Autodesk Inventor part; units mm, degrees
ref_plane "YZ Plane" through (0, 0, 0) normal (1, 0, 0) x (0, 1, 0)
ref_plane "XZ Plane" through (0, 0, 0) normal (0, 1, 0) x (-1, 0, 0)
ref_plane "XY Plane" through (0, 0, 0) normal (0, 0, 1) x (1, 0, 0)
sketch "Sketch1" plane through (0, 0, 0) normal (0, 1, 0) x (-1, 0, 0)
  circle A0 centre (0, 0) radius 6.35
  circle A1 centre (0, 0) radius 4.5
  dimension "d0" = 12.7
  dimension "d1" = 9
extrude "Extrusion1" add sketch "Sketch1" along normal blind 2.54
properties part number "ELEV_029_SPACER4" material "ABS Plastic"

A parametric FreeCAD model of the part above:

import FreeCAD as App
import Part
import Sketcher
from FreeCAD import Vector
Q = App.Units.Quantity

doc = App.newDocument("Part")
body = doc.addObject("PartDesign::Body", "Body")

# Sketch on XZ plane
sketch1 = body.newObject("Sketcher::SketchObject", "Sketch")
sketch1.AttachmentSupport = (doc.getObject("XZ_Plane"), [""])
sketch1.MapMode = "FlatFace"
sketch1.addGeometry(Part.Circle(Vector(0, 0, 0), Vector(0, 0, 1), 6.3), False)
sketch1.addGeometry(Part.Circle(Vector(0, 0, 0), Vector(0, 0, 1), 4.5), False)
sketch1.addConstraint(Sketcher.Constraint("Coincident", 0, 3, -1, 1))
sketch1.addConstraint(Sketcher.Constraint("Coincident", 1, 3, -1, 1))
sketch1.addConstraint(Sketcher.Constraint("Diameter", 0, Q("0.5 in")))
sketch1.addConstraint(Sketcher.Constraint("Diameter", 1, 9.0))
pad1 = body.newObject("PartDesign::Pad", "Pad")
pad1.Profile = sketch1
pad1.Length = Q("0.1 in")
pad1.Reversed = True

doc.recompute()
